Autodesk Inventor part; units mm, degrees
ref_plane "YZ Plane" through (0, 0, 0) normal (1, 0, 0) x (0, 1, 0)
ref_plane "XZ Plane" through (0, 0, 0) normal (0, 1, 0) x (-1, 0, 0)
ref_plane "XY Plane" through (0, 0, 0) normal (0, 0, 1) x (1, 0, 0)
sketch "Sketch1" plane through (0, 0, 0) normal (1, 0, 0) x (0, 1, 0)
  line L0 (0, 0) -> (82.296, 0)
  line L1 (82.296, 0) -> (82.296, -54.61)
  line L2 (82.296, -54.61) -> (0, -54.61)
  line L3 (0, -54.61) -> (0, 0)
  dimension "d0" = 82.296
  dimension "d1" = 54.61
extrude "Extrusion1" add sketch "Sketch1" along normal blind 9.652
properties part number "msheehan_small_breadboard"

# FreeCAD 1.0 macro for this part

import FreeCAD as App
import Part
import Sketcher
from FreeCAD import Vector
Q = App.Units.Quantity


def add_polygon(sketch, points):
    """Adds a closed chain of lines whose ends are joined by coincident constraints."""
    first, n = sketch.GeometryCount, len(points)
    for a, b in zip(points, points[1:] + points[:1]):
        sketch.addGeometry(Part.LineSegment(App.Vector(*a, 0), App.Vector(*b, 0)), False)
    for i in range(n):
        sketch.addConstraint(Sketcher.Constraint("Coincident", first + i, 2, first + (i + 1) % n, 1))

doc = App.newDocument("Part")
params = doc.addObject("Spreadsheet::Sheet", "Params")
for row, (alias, value) in enumerate([
    ("sketch1_width", "3.24 in"),
    ("sketch1_height", "2.15 in"),
    ("pad1_length", "0.38 in"),
], start=1):
    params.set(f"A{row}", alias)
    params.set(f"B{row}", "=" + value)
    params.setAlias(f"B{row}", alias)

body = doc.addObject("PartDesign::Body", "Body")

sketch1 = body.newObject("Sketcher::SketchObject", "Sketch")
sketch1.AttachmentSupport = (doc.getObject("YZ_Plane"), [""])
sketch1.MapMode = "FlatFace"
add_polygon(sketch1, [(82, 0), (0, 0), (0, -55), (82, -55)])
sketch1.addConstraint(Sketcher.Constraint("Horizontal", 0))
sketch1.addConstraint(Sketcher.Constraint("Vertical", 1))
sketch1.addConstraint(Sketcher.Constraint("Horizontal", 2))
sketch1.addConstraint(Sketcher.Constraint("Vertical", 3))
sketch1.addConstraint(Sketcher.Constraint("Coincident", 0, 2, -1, 1))
sketch1.addConstraint(Sketcher.Constraint("DistanceX", 0, 2, 0, 1, Q("3.24 in")))
sketch1.addConstraint(Sketcher.Constraint("DistanceY", 1, 2, 1, 1, Q("2.15 in")))
sketch1.setExpression("Constraints[9]", "Params.sketch1_width")
sketch1.setExpression("Constraints[10]", "Params.sketch1_height")
pad1 = body.newObject("PartDesign::Pad", "Pad")
pad1.Profile = sketch1
pad1.setExpression("Length", "Params.pad1_length")

doc.recompute()
